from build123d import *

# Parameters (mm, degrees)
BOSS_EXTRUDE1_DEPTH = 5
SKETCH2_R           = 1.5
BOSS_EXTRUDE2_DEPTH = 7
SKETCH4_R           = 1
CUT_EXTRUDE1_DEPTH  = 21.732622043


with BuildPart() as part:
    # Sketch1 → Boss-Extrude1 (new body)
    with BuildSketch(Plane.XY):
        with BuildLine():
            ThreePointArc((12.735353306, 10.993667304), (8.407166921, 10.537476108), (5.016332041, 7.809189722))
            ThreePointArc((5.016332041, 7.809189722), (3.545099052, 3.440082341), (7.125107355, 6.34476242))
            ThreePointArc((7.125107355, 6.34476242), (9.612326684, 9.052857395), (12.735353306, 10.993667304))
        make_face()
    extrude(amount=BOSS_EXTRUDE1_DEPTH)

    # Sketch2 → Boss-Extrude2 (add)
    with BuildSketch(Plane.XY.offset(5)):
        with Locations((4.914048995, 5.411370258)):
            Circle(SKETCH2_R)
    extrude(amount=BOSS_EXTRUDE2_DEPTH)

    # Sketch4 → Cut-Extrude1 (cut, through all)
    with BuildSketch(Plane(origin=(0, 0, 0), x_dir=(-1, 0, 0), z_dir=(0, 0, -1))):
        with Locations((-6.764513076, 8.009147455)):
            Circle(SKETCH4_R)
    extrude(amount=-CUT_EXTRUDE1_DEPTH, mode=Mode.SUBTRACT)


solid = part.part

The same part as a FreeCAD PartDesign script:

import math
import FreeCAD as App
import Part
import Sketcher
from FreeCAD import Vector

doc = App.newDocument("Part")
params = doc.addObject("Spreadsheet::Sheet", "Params")
for row, (alias, value) in enumerate([
    ("sketch1_radius", "2.4 mm"),
    ("pad1_length", "5 mm"),
    ("sketch2_diameter", "3 mm"),
    ("pad2_length", "7 mm"),
    ("sketch3_diameter", "2 mm"),
], start=1):
    params.set(f"A{row}", alias)
    params.set(f"B{row}", "=" + value)
    params.setAlias(f"B{row}", alias)

body = doc.addObject("PartDesign::Body", "Body")

# Sketch on XY plane
sketch1 = body.newObject("Sketcher::SketchObject", "Sketch")
sketch1.AttachmentSupport = (doc.getObject("XY_Plane"), [""])
sketch1.MapMode = "FlatFace"
sketch1.addGeometry([
    Part.ArcOfCircle(Part.Circle(Vector(11.3, 3.4, 0), Vector(0, 0, 1), 7.7), math.radians(80), math.radians(145)),
    Part.ArcOfCircle(Part.Circle(Vector(4.9, 5.4, 0), Vector(0, 0, 1), 2.4), math.radians(88), math.radians(383)),
    Part.ArcOfCircle(Part.Circle(Vector(18.3, -1.4, 0), Vector(0, 0, 1), 13.6), math.radians(114), math.radians(145)),
], False)
sketch1.addConstraint([
    Sketcher.Constraint("Coincident", 0, 2, 1, 1),
    Sketcher.Constraint("Coincident", 1, 2, 2, 2),
    Sketcher.Constraint("Coincident", 2, 1, 0, 1),
    Sketcher.Constraint("Radius", 1, 2.4),
    Sketcher.Constraint("Radius", 0, 7.706443),
    Sketcher.Constraint("Radius", 2, 13.567764),
    Sketcher.Constraint("DistanceY", 2, 3, 0, 3, 4.8077),
    Sketcher.Constraint("DistanceY", 0, 3, 2, 1, 7.5802),
    Sketcher.Constraint("DistanceX", -1, 1, 1, 3, 4.914049),
    Sketcher.Constraint("DistanceY", -1, 1, 1, 3, 5.41137),
    Sketcher.Constraint("DistanceX", -1, 1, 2, 3, 18.269261),
    Sketcher.Constraint("DistanceY", -1, 1, 0, 2, 7.80919),
])
sketch1.setExpression("Constraints[3]", "Params.sketch1_radius")
pad1 = body.newObject("PartDesign::Pad", "Pad")
pad1.Profile = sketch1
pad1.setExpression("Length", "Params.pad1_length")

# Sketch on XY plane
sketch2 = body.newObject("Sketcher::SketchObject", "Sketch001")
sketch2.AttachmentSupport = (doc.getObject("XY_Plane"), [""])
sketch2.MapMode = "FlatFace"
sketch2.AttachmentOffset = App.Placement(Vector(0, 0, 5), App.Rotation())
sketch2.addGeometry(Part.Circle(Vector(4.9, 5.4, 0), Vector(0, 0, 1), 1.5), False)
sketch2.addConstraint([
    Sketcher.Constraint("Diameter", 0, 3.0),
    Sketcher.Constraint("DistanceX", -1, 1, 0, 3, 4.914049),
    Sketcher.Constraint("DistanceY", -1, 1, 0, 3, 5.41137),
])
sketch2.setExpression("Constraints[0]", "Params.sketch2_diameter")
pad2 = body.newObject("PartDesign::Pad", "Pad001")
pad2.Profile = sketch2
pad2.setExpression("Length", "Params.pad2_length")

# Sketch on XY plane
sketch3 = body.newObject("Sketcher::SketchObject", "Sketch002")
sketch3.AttachmentSupport = (doc.getObject("XY_Plane"), [""])
sketch3.MapMode = "FlatFace"
sketch3.addGeometry(Part.Circle(Vector(6.8, 8, 0), Vector(0, 0, 1), 1), False)
sketch3.addConstraint([
    Sketcher.Constraint("Diameter", 0, 2.0),
    Sketcher.Constraint("DistanceX", -1, 1, 0, 3, 6.764513),
    Sketcher.Constraint("DistanceY", -1, 1, 0, 3, 8.009147),
])
sketch3.setExpression("Constraints[0]", "Params.sketch3_diameter")
pocket1 = body.newObject("PartDesign::Pocket", "Pocket")
pocket1.Profile = sketch3
pocket1.Type = "ThroughAll"
pocket1.Reversed = True

doc.recompute()
